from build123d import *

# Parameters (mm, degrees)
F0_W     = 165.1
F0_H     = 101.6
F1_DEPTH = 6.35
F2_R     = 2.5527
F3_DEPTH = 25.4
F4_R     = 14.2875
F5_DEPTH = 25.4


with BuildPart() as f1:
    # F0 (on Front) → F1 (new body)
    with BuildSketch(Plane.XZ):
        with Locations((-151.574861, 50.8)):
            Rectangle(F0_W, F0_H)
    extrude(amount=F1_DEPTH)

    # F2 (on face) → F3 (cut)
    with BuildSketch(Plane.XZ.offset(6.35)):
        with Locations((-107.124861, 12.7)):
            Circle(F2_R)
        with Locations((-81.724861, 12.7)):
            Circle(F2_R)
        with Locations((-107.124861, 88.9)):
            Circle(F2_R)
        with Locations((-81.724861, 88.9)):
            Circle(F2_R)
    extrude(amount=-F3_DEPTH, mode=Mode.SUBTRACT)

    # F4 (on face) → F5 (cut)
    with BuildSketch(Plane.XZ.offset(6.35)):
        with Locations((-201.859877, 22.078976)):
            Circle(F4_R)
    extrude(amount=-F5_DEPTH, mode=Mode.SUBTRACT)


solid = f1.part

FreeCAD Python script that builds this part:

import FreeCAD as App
import Part
import Sketcher
from FreeCAD import Vector
Q = App.Units.Quantity

doc = App.newDocument("Part")
body = doc.addObject("PartDesign::Body", "Body")

sketch1 = doc.addObject("Sketcher::SketchObject", "Sketch")
body.addObject(sketch1)
sketch1.AttachmentSupport = (doc.XZ_Plane, [""])
sketch1.MapMode = "FlatFace"
sketch1.addGeometry(Part.LineSegment(Vector(-234, 102, 0), Vector(-234, 0, 0)), False)
sketch1.addGeometry(Part.LineSegment(Vector(-234, 0, 0), Vector(-69, 0, 0)), False)
sketch1.addGeometry(Part.LineSegment(Vector(-69, 0, 0), Vector(-69, 102, 0)), False)
sketch1.addGeometry(Part.LineSegment(Vector(-69, 102, 0), Vector(-234, 102, 0)), False)
sketch1.addConstraint(Sketcher.Constraint("Coincident", 0, 2, 1, 1))
sketch1.addConstraint(Sketcher.Constraint("Coincident", 1, 2, 2, 1))
sketch1.addConstraint(Sketcher.Constraint("Coincident", 2, 2, 3, 1))
sketch1.addConstraint(Sketcher.Constraint("Coincident", 3, 2, 0, 1))
sketch1.addConstraint(Sketcher.Constraint("Vertical", 0))
sketch1.addConstraint(Sketcher.Constraint("Horizontal", 1))
sketch1.addConstraint(Sketcher.Constraint("Vertical", 2))
sketch1.addConstraint(Sketcher.Constraint("Horizontal", 3))
sketch1.addConstraint(Sketcher.Constraint("PointOnObject", 0, 2, -1))
sketch1.addConstraint(Sketcher.Constraint("DistanceY", 0, 2, 0, 1, Q("4 in")))
sketch1.addConstraint(Sketcher.Constraint("DistanceX", 1, 1, 1, 2, Q("6.5 in")))
sketch1.addConstraint(Sketcher.Constraint("DistanceX", 0, 2, -1, 1, Q("234.124861 mm")))
pad1 = doc.addObject("PartDesign::Pad", "Pad")
body.addObject(pad1)
pad1.Profile = sketch1
pad1.Length = Q("0.25 in")

sketch2 = doc.addObject("Sketcher::SketchObject", "Sketch001")
body.addObject(sketch2)
sketch2.AttachmentSupport = (doc.XZ_Plane, [""])
sketch2.MapMode = "FlatFace"
sketch2.AttachmentOffset = App.Placement(Vector(0, 0, 0.25 * 25.4), App.Rotation())
sketch2.addGeometry(Part.Circle(Vector(-107.1, 12.7, 0), Vector(0, 0, 1), 2.6), False)
sketch2.addGeometry(Part.Circle(Vector(-81.7, 12.7, 0), Vector(0, 0, 1), 2.6), False)
sketch2.addGeometry(Part.Circle(Vector(-107.1, 88.9, 0), Vector(0, 0, 1), 2.6), False)
sketch2.addGeometry(Part.Circle(Vector(-81.7, 88.9, 0), Vector(0, 0, 1), 2.6), False)
sketch2.addConstraint(Sketcher.Constraint("Equal", 0, 1))
sketch2.addConstraint(Sketcher.Constraint("Equal", 1, 2))
sketch2.addConstraint(Sketcher.Constraint("Equal", 2, 3))
sketch2.addConstraint(Sketcher.Constraint("Horizontal", 0, 3, 1, 3))
sketch2.addConstraint(Sketcher.Constraint("Horizontal", 2, 3, 3, 3))
sketch2.addConstraint(Sketcher.Constraint("Vertical", 0, 3, 2, 3))
sketch2.addConstraint(Sketcher.Constraint("Vertical", 1, 3, 3, 3))
sketch2.addConstraint(Sketcher.Constraint("Diameter", 0, Q("0.201 in")))
sketch2.addConstraint(Sketcher.Constraint("DistanceX", 0, 3, 1, 3, Q("1 in")))
sketch2.addConstraint(Sketcher.Constraint("DistanceY", 0, 3, 2, 3, Q("3 in")))
sketch2.addConstraint(Sketcher.Constraint("DistanceY", -1, 1, 0, 3, Q("0.5 in")))
sketch2.addConstraint(Sketcher.Constraint("DistanceX", 0, 3, -1, 1, Q("107.124861 mm")))
pocket1 = doc.addObject("PartDesign::Pocket", "Pocket")
body.addObject(pocket1)
pocket1.Profile = sketch2
pocket1.Length = Q("1 in")

sketch3 = doc.addObject("Sketcher::SketchObject", "Sketch002")
body.addObject(sketch3)
sketch3.AttachmentSupport = (doc.XZ_Plane, [""])
sketch3.MapMode = "FlatFace"
sketch3.AttachmentOffset = App.Placement(Vector(0, 0, 0.25 * 25.4), App.Rotation())
sketch3.addGeometry(Part.Circle(Vector(-202, 22, 0), Vector(0, 0, 1), 14), False)
sketch3.addConstraint(Sketcher.Constraint("Diameter", 0, Q("1.125 in")))
sketch3.addConstraint(Sketcher.Constraint("DistanceX", 0, 3, -1, 1, Q("201.859877 mm")))
sketch3.addConstraint(Sketcher.Constraint("DistanceY", -1, 1, 0, 3, Q("22.078976 mm")))
pocket2 = doc.addObject("PartDesign::Pocket", "Pocket001")
body.addObject(pocket2)
pocket2.Profile = sketch3
pocket2.Length = Q("1 in")

doc.recompute()
